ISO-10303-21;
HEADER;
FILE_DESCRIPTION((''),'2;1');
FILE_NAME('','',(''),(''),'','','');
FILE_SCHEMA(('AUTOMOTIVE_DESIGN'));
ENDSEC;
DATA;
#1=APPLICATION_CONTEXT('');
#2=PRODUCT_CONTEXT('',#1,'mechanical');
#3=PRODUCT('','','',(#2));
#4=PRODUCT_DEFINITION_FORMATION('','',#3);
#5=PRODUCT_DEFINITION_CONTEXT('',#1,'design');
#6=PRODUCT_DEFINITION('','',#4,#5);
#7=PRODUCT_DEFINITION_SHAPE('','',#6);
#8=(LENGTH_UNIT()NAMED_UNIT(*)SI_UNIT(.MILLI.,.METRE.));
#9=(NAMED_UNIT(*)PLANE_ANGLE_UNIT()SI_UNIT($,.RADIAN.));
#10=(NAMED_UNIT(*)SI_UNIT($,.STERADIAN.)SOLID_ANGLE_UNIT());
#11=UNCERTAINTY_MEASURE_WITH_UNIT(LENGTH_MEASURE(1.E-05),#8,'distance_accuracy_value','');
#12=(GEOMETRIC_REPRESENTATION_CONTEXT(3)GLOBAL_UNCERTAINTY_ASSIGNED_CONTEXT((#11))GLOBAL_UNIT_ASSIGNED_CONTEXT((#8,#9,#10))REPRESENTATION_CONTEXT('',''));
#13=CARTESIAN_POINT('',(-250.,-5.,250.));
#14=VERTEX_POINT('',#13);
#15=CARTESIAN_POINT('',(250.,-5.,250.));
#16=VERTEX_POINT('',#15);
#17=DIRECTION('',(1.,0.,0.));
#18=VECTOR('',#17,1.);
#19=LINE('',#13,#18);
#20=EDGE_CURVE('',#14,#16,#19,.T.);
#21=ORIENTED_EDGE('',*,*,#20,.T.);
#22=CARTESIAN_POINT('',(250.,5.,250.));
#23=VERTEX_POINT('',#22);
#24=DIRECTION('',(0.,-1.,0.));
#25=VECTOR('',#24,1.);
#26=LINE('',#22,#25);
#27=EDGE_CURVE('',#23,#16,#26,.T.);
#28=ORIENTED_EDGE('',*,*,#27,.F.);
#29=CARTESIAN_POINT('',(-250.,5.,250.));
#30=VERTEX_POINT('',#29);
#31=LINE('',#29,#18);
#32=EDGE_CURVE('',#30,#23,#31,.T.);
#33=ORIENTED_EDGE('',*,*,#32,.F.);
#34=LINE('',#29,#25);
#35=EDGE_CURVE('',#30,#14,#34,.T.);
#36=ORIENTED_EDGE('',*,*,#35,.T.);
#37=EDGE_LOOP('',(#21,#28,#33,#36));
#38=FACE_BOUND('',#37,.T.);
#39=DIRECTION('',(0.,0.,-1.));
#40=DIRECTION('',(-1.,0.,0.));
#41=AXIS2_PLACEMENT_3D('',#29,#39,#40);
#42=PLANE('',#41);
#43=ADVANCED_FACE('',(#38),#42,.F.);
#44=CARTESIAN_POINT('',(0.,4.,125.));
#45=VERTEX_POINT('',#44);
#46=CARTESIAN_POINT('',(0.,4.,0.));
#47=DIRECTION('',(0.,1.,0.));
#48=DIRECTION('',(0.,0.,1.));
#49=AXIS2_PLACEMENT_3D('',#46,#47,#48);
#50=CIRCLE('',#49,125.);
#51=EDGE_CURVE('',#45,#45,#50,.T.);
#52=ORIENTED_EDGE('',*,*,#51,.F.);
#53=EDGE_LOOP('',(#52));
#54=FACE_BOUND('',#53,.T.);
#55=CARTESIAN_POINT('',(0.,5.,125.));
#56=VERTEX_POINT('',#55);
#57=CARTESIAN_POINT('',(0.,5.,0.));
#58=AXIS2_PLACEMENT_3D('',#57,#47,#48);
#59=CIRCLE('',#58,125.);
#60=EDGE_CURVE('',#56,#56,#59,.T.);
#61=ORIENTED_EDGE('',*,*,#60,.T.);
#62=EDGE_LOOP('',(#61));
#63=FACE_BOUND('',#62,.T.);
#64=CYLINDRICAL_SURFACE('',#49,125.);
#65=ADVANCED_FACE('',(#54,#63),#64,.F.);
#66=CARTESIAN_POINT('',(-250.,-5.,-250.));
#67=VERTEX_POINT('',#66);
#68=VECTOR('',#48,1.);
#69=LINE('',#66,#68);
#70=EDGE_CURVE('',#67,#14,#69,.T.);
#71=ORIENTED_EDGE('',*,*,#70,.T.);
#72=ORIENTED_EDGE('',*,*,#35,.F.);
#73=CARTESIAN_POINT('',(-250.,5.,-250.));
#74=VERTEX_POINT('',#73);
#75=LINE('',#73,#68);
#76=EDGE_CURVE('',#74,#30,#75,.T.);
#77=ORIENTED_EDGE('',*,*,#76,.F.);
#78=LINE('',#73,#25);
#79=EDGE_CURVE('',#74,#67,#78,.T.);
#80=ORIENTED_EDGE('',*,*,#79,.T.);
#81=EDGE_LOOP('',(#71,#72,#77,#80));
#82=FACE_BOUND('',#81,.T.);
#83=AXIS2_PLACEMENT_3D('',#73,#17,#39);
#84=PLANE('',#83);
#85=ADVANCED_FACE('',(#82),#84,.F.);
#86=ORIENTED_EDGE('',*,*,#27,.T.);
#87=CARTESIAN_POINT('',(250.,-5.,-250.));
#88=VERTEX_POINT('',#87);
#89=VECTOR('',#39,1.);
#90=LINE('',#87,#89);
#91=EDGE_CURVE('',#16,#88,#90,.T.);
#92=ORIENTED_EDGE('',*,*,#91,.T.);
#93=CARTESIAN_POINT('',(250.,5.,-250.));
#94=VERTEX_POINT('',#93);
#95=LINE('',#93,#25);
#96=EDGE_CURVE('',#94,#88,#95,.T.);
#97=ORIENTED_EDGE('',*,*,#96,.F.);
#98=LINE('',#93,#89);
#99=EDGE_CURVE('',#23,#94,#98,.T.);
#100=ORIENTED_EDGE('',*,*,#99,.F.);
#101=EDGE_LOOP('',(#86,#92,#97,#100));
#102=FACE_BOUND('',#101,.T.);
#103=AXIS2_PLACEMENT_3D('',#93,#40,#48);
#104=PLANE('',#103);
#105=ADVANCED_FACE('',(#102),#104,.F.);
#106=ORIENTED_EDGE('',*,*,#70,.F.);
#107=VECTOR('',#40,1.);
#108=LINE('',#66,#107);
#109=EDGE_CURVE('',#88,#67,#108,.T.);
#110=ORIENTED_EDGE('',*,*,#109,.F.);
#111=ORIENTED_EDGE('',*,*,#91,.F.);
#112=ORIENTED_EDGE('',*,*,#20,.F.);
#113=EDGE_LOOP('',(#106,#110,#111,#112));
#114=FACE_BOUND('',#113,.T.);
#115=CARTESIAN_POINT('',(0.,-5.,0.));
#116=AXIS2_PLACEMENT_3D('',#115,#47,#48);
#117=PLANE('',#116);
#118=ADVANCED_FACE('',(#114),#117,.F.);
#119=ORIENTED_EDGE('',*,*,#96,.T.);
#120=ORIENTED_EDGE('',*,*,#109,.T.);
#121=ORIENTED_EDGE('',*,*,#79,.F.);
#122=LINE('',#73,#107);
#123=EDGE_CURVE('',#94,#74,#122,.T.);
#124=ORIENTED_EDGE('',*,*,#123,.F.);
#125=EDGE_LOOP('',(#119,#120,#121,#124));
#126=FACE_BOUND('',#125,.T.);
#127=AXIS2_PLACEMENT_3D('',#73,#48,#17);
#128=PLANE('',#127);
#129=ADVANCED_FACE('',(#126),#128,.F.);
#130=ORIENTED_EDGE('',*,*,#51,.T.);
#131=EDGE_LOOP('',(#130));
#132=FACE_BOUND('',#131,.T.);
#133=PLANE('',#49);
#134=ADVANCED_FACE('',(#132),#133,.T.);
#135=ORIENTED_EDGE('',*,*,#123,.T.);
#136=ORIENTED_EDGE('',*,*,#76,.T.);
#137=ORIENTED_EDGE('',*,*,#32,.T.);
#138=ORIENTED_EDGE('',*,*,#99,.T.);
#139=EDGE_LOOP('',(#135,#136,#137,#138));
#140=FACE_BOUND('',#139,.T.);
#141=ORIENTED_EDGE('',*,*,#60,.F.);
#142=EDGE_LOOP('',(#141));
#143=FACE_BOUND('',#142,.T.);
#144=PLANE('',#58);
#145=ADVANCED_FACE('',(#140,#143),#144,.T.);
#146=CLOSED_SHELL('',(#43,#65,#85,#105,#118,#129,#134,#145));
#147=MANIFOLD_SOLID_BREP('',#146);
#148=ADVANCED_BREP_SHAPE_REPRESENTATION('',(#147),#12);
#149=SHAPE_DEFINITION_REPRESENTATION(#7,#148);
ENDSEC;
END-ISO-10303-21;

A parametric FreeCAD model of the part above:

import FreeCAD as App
import Part
import Sketcher
from FreeCAD import Vector
Q = App.Units.Quantity

doc = App.newDocument("Part")
body = doc.addObject("PartDesign::Body", "Body")

# Sketch on XZ plane
sketch1 = body.newObject("Sketcher::SketchObject", "Sketch")
sketch1.AttachmentSupport = (doc.getObject("XZ_Plane"), [""])
sketch1.MapMode = "FlatFace"
sketch1.addGeometry([
    Part.LineSegment(Vector(-250, -250, 0), Vector(-250, 250, 0)),
    Part.LineSegment(Vector(-250, 250, 0), Vector(250, 250, 0)),
    Part.LineSegment(Vector(250, 250, 0), Vector(250, -250, 0)),
    Part.LineSegment(Vector(250, -250, 0), Vector(-250, -250, 0)),
], False)
sketch1.addConstraint([
    Sketcher.Constraint("Coincident", 0, 2, 1, 1),
    Sketcher.Constraint("Coincident", 1, 2, 2, 1),
    Sketcher.Constraint("Coincident", 2, 2, 3, 1),
    Sketcher.Constraint("Coincident", 3, 2, 0, 1),
    Sketcher.Constraint("Vertical", 0),
    Sketcher.Constraint("Horizontal", 1),
    Sketcher.Constraint("Vertical", 2),
    Sketcher.Constraint("Horizontal", 3),
    Sketcher.Constraint("Symmetric", 0, 2, 2, 2, -1, 1),
    Sketcher.Constraint("Equal", 3, 0),
    Sketcher.Constraint("DistanceX", 1, 1, 1, 2, Q("500 mm")),
])
pad1 = body.newObject("PartDesign::Pad", "Pad")
pad1.Profile = sketch1
pad1.Length = 10
pad1.Midplane = True

# Sketch on XZ plane
sketch2 = body.newObject("Sketcher::SketchObject", "Sketch001")
sketch2.AttachmentSupport = (doc.getObject("XZ_Plane"), [""])
sketch2.MapMode = "FlatFace"
sketch2.AttachmentOffset = App.Placement(Vector(0, 0, -5), App.Rotation())
sketch2.addGeometry(Part.Circle(Vector(0, 0, 0), Vector(0, 0, 1), 125), False)
sketch2.addConstraint([
    Sketcher.Constraint("Coincident", 0, 3, -1, 1),
    Sketcher.Constraint("Diameter", 0, Q("250 mm")),
])
pocket1 = body.newObject("PartDesign::Pocket", "Pocket")
pocket1.Profile = sketch2
pocket1.Length = 1
pocket1.Reversed = True

doc.recompute()
